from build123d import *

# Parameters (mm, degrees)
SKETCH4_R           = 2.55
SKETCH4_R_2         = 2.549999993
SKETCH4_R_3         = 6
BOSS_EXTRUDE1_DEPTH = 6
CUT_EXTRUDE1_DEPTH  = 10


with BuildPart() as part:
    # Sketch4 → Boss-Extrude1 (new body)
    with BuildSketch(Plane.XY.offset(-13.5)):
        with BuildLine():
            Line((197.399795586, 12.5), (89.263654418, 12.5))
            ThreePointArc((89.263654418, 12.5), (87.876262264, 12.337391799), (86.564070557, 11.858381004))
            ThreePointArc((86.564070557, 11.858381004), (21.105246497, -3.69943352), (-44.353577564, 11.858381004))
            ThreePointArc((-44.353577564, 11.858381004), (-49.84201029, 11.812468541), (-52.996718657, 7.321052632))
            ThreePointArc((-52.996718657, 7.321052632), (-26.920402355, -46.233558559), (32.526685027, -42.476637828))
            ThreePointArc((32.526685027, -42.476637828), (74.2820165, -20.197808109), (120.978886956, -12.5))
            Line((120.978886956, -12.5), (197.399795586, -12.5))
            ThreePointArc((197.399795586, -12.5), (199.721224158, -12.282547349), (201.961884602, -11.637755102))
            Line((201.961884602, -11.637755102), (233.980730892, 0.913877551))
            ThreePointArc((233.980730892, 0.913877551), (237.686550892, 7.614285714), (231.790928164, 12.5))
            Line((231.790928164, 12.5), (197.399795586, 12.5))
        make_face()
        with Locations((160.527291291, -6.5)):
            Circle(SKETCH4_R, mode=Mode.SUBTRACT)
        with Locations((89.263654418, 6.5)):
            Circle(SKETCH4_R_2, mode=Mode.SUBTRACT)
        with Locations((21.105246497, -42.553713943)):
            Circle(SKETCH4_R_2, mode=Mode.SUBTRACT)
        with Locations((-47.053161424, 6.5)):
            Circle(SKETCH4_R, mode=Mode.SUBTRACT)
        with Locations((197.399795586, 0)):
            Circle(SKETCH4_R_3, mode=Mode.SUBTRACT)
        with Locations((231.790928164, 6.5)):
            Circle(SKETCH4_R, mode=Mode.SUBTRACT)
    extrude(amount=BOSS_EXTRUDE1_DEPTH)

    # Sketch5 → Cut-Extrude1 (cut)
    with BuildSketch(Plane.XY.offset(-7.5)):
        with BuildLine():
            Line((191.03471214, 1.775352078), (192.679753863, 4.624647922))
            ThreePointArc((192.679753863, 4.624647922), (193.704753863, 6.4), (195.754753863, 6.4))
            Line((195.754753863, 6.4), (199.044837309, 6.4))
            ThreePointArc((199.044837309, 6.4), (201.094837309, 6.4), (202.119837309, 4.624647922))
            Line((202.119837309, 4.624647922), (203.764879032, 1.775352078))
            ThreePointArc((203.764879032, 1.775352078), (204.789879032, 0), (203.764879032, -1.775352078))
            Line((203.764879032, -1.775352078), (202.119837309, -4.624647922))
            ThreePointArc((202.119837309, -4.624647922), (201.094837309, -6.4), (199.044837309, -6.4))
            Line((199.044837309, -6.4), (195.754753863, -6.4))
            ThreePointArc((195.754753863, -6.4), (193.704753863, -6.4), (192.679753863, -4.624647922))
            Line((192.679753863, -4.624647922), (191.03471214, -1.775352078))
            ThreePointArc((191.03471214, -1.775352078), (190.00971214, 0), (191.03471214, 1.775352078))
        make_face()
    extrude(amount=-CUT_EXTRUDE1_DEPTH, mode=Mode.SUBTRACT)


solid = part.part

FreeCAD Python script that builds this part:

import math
import FreeCAD as App
import Part
import Sketcher
from FreeCAD import Vector
Q = App.Units.Quantity

doc = App.newDocument("Part")
body = doc.addObject("PartDesign::Body", "Body")

# Sketch on XY plane
sketch1 = doc.addObject("Sketcher::SketchObject", "Sketch")
body.addObject(sketch1)
sketch1.AttachmentSupport = (doc.XY_Plane, [""])
sketch1.MapMode = "FlatFace"
sketch1.AttachmentOffset = App.Placement(Vector(0, 0, -13.5), App.Rotation())
sketch1.addGeometry([
    Part.ArcOfCircle(Part.Circle(Vector(89.263654, 6.5, 0), Vector(0, 0, 1), 6), math.radians(90), math.radians(116.739234)),  # 0
    Part.ArcOfCircle(Part.Circle(Vector(21.105246, 141.787043, 0), Vector(0, 0, 1), 145.486477), math.radians(-116.739234), math.radians(-63.260766)),  # 1
    Part.ArcOfCircle(Part.Circle(Vector(-47.053161, 6.5, 0), Vector(0, 0, 1), 6), math.radians(63.260766), math.radians(172.134847)),  # 2
    Part.ArcOfCircle(Part.Circle(Vector(0, 0, 0), Vector(0, 0, 1), 53.5), math.radians(172.134847), math.radians(307.443256)),  # 3
    Part.ArcOfCircle(Part.Circle(Vector(120.978887, -157.986477, 0), Vector(0, 0, 1), 145.486477), math.radians(90), math.radians(127.443256)),  # 4
    Part.LineSegment(Vector(120.978887, -12.5, 0), Vector(197.399796, -12.5, 0)),  # 5
    Part.ArcOfCircle(Part.Circle(Vector(197.399796, 0, 0), Vector(0, 0, 1), 12.5), math.radians(-90), math.radians(-68.594441)),  # 6
    Part.LineSegment(Vector(201.961885, -11.637755, 0), Vector(233.980731, 0.913878, 0)),  # 7
    Part.ArcOfCircle(Part.Circle(Vector(231.790928, 6.5, 0), Vector(0, 0, 1), 6), math.radians(-68.594441), math.radians(90)),  # 8
    Part.LineSegment(Vector(231.790928, 12.5, 0), Vector(89.263654, 12.5, 0)),  # 9
    Part.Circle(Vector(21.105246, -42.553714, 0), Vector(0, 0, 1), 2.55),  # 10
    Part.Circle(Vector(-47.053161, 6.5, 0), Vector(0, 0, 1), 2.55),  # 11
    Part.Circle(Vector(89.263654, 6.5, 0), Vector(0, 0, 1), 2.55),  # 12
    Part.Circle(Vector(160.527291, -6.5, 0), Vector(0, 0, 1), 2.55),  # 13
    Part.Circle(Vector(197.399796, 0, 0), Vector(0, 0, 1), 6),  # 14
    Part.Circle(Vector(231.790928, 6.5, 0), Vector(0, 0, 1), 2.55),  # 15
], False)
sketch1.addConstraint([
    Sketcher.Constraint("Tangent", 0, 2, 1, 2),
    Sketcher.Constraint("Tangent", 1, 1, 2, 1),
    Sketcher.Constraint("Tangent", 2, 2, 3, 1),
    Sketcher.Constraint("Tangent", 3, 2, 4, 2),
    Sketcher.Constraint("Tangent", 4, 1, 5, 1),
    Sketcher.Constraint("Tangent", 5, 2, 6, 1),
    Sketcher.Constraint("Tangent", 6, 2, 7, 1),
    Sketcher.Constraint("Tangent", 7, 2, 8, 1),
    Sketcher.Constraint("Tangent", 8, 2, 9, 1),
    Sketcher.Constraint("Tangent", 9, 2, 0, 1),
    Sketcher.Constraint("Horizontal", 5),
    Sketcher.Constraint("Horizontal", 9),
    Sketcher.Constraint("Coincident", 3, 3, -1, 1),
    Sketcher.Constraint("Coincident", 11, 3, 2, 3),
    Sketcher.Constraint("Coincident", 12, 3, 0, 3),
    Sketcher.Constraint("Coincident", 14, 3, 6, 3),
    Sketcher.Constraint("Coincident", 15, 3, 8, 3),
    Sketcher.Constraint("Equal", 0, 2),
    Sketcher.Constraint("Equal", 1, 4),
    Sketcher.Constraint("Equal", 2, 8),
    Sketcher.Constraint("Equal", 10, 11),
    Sketcher.Constraint("Equal", 11, 12),
    Sketcher.Constraint("Equal", 12, 13),
    Sketcher.Constraint("Equal", 8, 14),
    Sketcher.Constraint("Equal", 13, 15),
    Sketcher.Constraint("PointOnObject", 6, 3, -1),
    Sketcher.Constraint("Horizontal", 0, 3, 2, 3),
    Sketcher.Constraint("Vertical", 1, 3, 10, 3),
    Sketcher.Constraint("Diameter", 14, Q("12 mm")),
    Sketcher.Constraint("Diameter", 10, Q("5.1 mm")),
    Sketcher.Constraint("Radius", 3, Q("53.5 mm")),
    Sketcher.Constraint("Radius", 6, Q("12.5 mm")),
    Sketcher.Constraint("DistanceY", 13, 3, 8, 3, Q("13 mm")),
    Sketcher.Constraint("DistanceY", 4, 1, 12, 3, Q("19 mm")),
    Sketcher.Constraint("Radius", 1, Q("145.486477 mm")),
    Sketcher.Constraint("DistanceX", 5, 1, 5, 2, Q("76.420909 mm")),
    Sketcher.Constraint("DistanceX", 9, 2, 9, 1, Q("142.527274 mm")),
    Sketcher.Constraint("DistanceX", -1, 1, 8, 3, Q("231.790928 mm")),
    Sketcher.Constraint("DistanceX", -1, 1, 13, 3, Q("160.527291 mm")),
    Sketcher.Constraint("DistanceY", 10, 3, -1, 1, Q("42.553714 mm")),
])
pad1 = doc.addObject("PartDesign::Pad", "Pad")
body.addObject(pad1)
pad1.Profile = sketch1
pad1.Length = 6

# Sketch on XY plane
sketch2 = doc.addObject("Sketcher::SketchObject", "Sketch001")
body.addObject(sketch2)
sketch2.AttachmentSupport = (doc.XY_Plane, [""])
sketch2.MapMode = "FlatFace"
sketch2.AttachmentOffset = App.Placement(Vector(0, 0, -7.5), App.Rotation())
sketch2.addGeometry([
    Part.LineSegment(Vector(192.679754, 4.624648, 0), Vector(191.034712, 1.775352, 0)),  # 0
    Part.ArcOfCircle(Part.Circle(Vector(192.059712, 0, 0), Vector(0, 0, 1), 2.05), math.radians(120), math.radians(240)),  # 1
    Part.LineSegment(Vector(191.034712, -1.775352, 0), Vector(192.679754, -4.624648, 0)),  # 2
    Part.ArcOfCircle(Part.Circle(Vector(194.729754, -4.624648, 0), Vector(0, 0, 1), 2.05), math.radians(180), math.radians(300)),  # 3
    Part.LineSegment(Vector(195.754754, -6.4, 0), Vector(199.044837, -6.4, 0)),  # 4
    Part.ArcOfCircle(Part.Circle(Vector(200.069837, -4.624648, 0), Vector(0, 0, 1), 2.05), math.radians(-120), math.radians(0)),  # 5
    Part.LineSegment(Vector(202.119837, -4.624648, 0), Vector(203.764879, -1.775352, 0)),  # 6
    Part.ArcOfCircle(Part.Circle(Vector(202.739879, 0, 0), Vector(0, 0, 1), 2.05), math.radians(-60), math.radians(60)),  # 7
    Part.LineSegment(Vector(203.764879, 1.775352, 0), Vector(202.119837, 4.624648, 0)),  # 8
    Part.ArcOfCircle(Part.Circle(Vector(200.069837, 4.624648, 0), Vector(0, 0, 1), 2.05), math.radians(0), math.radians(120)),  # 9
    Part.LineSegment(Vector(199.044837, 6.4, 0), Vector(195.754754, 6.4, 0)),  # 10
    Part.ArcOfCircle(Part.Circle(Vector(194.729754, 4.624648, 0), Vector(0, 0, 1), 2.05), math.radians(60), math.radians(180)),  # 11
], False)
sketch2.addConstraint([
    Sketcher.Constraint("Coincident", 0, 2, 1, 1),
    Sketcher.Constraint("Coincident", 1, 2, 2, 1),
    Sketcher.Constraint("Coincident", 2, 2, 3, 1),
    Sketcher.Constraint("Coincident", 3, 2, 4, 1),
    Sketcher.Constraint("Coincident", 4, 2, 5, 1),
    Sketcher.Constraint("Coincident", 5, 2, 6, 1),
    Sketcher.Constraint("Coincident", 6, 2, 7, 1),
    Sketcher.Constraint("Coincident", 7, 2, 8, 1),
    Sketcher.Constraint("Coincident", 8, 2, 9, 1),
    Sketcher.Constraint("Coincident", 9, 2, 10, 1),
    Sketcher.Constraint("Coincident", 10, 2, 11, 1),
    Sketcher.Constraint("Coincident", 11, 2, 0, 1),
    Sketcher.Constraint("Horizontal", 4),
    Sketcher.Constraint("Horizontal", 10),
    Sketcher.Constraint("Equal", 1, 3),
    Sketcher.Constraint("Equal", 3, 5),
    Sketcher.Constraint("Equal", 5, 7),
    Sketcher.Constraint("Equal", 7, 9),
    Sketcher.Constraint("Equal", 9, 11),
    Sketcher.Constraint("Symmetric", 5, 3, 9, 3, -1),
    Sketcher.Constraint("Symmetric", 3, 3, 11, 3, -1),
    Sketcher.Constraint("Symmetric", 0, 2, 1, 2, -1),
    Sketcher.Constraint("Symmetric", 6, 2, 7, 2, -1),
    Sketcher.Constraint("Parallel", 0, 6),
    Sketcher.Constraint("Parallel", 2, 8),
    Sketcher.Constraint("Horizontal", 3, 3, 5, 3),
    Sketcher.Constraint("Horizontal", 5, 3, 2, 2),
    Sketcher.Constraint("Horizontal", 2, 2, 5, 2),
    Sketcher.Constraint("Horizontal", 1, 2, 6, 2),
    Sketcher.Constraint("Horizontal", 11, 3, 8, 2),
    Sketcher.Constraint("Vertical", 4, 2, 9, 2),
    Sketcher.Constraint("Angle", 0, Q("-120 deg")),
    Sketcher.Constraint("Radius", 1, Q("2.05 mm")),
    Sketcher.Constraint("DistanceY", 3, 2, -1, 1, Q("6.4 mm")),
    Sketcher.Constraint("DistanceY", 3, 3, 0, 2, Q("6.4 mm")),
    Sketcher.Constraint("DistanceX", 0, 2, 1, 3, Q("1.025 mm")),
    Sketcher.Constraint("DistanceX", 4, 1, 4, 2, Q("3.290083 mm")),
    Sketcher.Constraint("DistanceX", -1, 1, 7, 3, Q("202.739879 mm")),
])
pocket1 = doc.addObject("PartDesign::Pocket", "Pocket")
body.addObject(pocket1)
pocket1.Profile = sketch2
pocket1.Length = 10

doc.recompute()
